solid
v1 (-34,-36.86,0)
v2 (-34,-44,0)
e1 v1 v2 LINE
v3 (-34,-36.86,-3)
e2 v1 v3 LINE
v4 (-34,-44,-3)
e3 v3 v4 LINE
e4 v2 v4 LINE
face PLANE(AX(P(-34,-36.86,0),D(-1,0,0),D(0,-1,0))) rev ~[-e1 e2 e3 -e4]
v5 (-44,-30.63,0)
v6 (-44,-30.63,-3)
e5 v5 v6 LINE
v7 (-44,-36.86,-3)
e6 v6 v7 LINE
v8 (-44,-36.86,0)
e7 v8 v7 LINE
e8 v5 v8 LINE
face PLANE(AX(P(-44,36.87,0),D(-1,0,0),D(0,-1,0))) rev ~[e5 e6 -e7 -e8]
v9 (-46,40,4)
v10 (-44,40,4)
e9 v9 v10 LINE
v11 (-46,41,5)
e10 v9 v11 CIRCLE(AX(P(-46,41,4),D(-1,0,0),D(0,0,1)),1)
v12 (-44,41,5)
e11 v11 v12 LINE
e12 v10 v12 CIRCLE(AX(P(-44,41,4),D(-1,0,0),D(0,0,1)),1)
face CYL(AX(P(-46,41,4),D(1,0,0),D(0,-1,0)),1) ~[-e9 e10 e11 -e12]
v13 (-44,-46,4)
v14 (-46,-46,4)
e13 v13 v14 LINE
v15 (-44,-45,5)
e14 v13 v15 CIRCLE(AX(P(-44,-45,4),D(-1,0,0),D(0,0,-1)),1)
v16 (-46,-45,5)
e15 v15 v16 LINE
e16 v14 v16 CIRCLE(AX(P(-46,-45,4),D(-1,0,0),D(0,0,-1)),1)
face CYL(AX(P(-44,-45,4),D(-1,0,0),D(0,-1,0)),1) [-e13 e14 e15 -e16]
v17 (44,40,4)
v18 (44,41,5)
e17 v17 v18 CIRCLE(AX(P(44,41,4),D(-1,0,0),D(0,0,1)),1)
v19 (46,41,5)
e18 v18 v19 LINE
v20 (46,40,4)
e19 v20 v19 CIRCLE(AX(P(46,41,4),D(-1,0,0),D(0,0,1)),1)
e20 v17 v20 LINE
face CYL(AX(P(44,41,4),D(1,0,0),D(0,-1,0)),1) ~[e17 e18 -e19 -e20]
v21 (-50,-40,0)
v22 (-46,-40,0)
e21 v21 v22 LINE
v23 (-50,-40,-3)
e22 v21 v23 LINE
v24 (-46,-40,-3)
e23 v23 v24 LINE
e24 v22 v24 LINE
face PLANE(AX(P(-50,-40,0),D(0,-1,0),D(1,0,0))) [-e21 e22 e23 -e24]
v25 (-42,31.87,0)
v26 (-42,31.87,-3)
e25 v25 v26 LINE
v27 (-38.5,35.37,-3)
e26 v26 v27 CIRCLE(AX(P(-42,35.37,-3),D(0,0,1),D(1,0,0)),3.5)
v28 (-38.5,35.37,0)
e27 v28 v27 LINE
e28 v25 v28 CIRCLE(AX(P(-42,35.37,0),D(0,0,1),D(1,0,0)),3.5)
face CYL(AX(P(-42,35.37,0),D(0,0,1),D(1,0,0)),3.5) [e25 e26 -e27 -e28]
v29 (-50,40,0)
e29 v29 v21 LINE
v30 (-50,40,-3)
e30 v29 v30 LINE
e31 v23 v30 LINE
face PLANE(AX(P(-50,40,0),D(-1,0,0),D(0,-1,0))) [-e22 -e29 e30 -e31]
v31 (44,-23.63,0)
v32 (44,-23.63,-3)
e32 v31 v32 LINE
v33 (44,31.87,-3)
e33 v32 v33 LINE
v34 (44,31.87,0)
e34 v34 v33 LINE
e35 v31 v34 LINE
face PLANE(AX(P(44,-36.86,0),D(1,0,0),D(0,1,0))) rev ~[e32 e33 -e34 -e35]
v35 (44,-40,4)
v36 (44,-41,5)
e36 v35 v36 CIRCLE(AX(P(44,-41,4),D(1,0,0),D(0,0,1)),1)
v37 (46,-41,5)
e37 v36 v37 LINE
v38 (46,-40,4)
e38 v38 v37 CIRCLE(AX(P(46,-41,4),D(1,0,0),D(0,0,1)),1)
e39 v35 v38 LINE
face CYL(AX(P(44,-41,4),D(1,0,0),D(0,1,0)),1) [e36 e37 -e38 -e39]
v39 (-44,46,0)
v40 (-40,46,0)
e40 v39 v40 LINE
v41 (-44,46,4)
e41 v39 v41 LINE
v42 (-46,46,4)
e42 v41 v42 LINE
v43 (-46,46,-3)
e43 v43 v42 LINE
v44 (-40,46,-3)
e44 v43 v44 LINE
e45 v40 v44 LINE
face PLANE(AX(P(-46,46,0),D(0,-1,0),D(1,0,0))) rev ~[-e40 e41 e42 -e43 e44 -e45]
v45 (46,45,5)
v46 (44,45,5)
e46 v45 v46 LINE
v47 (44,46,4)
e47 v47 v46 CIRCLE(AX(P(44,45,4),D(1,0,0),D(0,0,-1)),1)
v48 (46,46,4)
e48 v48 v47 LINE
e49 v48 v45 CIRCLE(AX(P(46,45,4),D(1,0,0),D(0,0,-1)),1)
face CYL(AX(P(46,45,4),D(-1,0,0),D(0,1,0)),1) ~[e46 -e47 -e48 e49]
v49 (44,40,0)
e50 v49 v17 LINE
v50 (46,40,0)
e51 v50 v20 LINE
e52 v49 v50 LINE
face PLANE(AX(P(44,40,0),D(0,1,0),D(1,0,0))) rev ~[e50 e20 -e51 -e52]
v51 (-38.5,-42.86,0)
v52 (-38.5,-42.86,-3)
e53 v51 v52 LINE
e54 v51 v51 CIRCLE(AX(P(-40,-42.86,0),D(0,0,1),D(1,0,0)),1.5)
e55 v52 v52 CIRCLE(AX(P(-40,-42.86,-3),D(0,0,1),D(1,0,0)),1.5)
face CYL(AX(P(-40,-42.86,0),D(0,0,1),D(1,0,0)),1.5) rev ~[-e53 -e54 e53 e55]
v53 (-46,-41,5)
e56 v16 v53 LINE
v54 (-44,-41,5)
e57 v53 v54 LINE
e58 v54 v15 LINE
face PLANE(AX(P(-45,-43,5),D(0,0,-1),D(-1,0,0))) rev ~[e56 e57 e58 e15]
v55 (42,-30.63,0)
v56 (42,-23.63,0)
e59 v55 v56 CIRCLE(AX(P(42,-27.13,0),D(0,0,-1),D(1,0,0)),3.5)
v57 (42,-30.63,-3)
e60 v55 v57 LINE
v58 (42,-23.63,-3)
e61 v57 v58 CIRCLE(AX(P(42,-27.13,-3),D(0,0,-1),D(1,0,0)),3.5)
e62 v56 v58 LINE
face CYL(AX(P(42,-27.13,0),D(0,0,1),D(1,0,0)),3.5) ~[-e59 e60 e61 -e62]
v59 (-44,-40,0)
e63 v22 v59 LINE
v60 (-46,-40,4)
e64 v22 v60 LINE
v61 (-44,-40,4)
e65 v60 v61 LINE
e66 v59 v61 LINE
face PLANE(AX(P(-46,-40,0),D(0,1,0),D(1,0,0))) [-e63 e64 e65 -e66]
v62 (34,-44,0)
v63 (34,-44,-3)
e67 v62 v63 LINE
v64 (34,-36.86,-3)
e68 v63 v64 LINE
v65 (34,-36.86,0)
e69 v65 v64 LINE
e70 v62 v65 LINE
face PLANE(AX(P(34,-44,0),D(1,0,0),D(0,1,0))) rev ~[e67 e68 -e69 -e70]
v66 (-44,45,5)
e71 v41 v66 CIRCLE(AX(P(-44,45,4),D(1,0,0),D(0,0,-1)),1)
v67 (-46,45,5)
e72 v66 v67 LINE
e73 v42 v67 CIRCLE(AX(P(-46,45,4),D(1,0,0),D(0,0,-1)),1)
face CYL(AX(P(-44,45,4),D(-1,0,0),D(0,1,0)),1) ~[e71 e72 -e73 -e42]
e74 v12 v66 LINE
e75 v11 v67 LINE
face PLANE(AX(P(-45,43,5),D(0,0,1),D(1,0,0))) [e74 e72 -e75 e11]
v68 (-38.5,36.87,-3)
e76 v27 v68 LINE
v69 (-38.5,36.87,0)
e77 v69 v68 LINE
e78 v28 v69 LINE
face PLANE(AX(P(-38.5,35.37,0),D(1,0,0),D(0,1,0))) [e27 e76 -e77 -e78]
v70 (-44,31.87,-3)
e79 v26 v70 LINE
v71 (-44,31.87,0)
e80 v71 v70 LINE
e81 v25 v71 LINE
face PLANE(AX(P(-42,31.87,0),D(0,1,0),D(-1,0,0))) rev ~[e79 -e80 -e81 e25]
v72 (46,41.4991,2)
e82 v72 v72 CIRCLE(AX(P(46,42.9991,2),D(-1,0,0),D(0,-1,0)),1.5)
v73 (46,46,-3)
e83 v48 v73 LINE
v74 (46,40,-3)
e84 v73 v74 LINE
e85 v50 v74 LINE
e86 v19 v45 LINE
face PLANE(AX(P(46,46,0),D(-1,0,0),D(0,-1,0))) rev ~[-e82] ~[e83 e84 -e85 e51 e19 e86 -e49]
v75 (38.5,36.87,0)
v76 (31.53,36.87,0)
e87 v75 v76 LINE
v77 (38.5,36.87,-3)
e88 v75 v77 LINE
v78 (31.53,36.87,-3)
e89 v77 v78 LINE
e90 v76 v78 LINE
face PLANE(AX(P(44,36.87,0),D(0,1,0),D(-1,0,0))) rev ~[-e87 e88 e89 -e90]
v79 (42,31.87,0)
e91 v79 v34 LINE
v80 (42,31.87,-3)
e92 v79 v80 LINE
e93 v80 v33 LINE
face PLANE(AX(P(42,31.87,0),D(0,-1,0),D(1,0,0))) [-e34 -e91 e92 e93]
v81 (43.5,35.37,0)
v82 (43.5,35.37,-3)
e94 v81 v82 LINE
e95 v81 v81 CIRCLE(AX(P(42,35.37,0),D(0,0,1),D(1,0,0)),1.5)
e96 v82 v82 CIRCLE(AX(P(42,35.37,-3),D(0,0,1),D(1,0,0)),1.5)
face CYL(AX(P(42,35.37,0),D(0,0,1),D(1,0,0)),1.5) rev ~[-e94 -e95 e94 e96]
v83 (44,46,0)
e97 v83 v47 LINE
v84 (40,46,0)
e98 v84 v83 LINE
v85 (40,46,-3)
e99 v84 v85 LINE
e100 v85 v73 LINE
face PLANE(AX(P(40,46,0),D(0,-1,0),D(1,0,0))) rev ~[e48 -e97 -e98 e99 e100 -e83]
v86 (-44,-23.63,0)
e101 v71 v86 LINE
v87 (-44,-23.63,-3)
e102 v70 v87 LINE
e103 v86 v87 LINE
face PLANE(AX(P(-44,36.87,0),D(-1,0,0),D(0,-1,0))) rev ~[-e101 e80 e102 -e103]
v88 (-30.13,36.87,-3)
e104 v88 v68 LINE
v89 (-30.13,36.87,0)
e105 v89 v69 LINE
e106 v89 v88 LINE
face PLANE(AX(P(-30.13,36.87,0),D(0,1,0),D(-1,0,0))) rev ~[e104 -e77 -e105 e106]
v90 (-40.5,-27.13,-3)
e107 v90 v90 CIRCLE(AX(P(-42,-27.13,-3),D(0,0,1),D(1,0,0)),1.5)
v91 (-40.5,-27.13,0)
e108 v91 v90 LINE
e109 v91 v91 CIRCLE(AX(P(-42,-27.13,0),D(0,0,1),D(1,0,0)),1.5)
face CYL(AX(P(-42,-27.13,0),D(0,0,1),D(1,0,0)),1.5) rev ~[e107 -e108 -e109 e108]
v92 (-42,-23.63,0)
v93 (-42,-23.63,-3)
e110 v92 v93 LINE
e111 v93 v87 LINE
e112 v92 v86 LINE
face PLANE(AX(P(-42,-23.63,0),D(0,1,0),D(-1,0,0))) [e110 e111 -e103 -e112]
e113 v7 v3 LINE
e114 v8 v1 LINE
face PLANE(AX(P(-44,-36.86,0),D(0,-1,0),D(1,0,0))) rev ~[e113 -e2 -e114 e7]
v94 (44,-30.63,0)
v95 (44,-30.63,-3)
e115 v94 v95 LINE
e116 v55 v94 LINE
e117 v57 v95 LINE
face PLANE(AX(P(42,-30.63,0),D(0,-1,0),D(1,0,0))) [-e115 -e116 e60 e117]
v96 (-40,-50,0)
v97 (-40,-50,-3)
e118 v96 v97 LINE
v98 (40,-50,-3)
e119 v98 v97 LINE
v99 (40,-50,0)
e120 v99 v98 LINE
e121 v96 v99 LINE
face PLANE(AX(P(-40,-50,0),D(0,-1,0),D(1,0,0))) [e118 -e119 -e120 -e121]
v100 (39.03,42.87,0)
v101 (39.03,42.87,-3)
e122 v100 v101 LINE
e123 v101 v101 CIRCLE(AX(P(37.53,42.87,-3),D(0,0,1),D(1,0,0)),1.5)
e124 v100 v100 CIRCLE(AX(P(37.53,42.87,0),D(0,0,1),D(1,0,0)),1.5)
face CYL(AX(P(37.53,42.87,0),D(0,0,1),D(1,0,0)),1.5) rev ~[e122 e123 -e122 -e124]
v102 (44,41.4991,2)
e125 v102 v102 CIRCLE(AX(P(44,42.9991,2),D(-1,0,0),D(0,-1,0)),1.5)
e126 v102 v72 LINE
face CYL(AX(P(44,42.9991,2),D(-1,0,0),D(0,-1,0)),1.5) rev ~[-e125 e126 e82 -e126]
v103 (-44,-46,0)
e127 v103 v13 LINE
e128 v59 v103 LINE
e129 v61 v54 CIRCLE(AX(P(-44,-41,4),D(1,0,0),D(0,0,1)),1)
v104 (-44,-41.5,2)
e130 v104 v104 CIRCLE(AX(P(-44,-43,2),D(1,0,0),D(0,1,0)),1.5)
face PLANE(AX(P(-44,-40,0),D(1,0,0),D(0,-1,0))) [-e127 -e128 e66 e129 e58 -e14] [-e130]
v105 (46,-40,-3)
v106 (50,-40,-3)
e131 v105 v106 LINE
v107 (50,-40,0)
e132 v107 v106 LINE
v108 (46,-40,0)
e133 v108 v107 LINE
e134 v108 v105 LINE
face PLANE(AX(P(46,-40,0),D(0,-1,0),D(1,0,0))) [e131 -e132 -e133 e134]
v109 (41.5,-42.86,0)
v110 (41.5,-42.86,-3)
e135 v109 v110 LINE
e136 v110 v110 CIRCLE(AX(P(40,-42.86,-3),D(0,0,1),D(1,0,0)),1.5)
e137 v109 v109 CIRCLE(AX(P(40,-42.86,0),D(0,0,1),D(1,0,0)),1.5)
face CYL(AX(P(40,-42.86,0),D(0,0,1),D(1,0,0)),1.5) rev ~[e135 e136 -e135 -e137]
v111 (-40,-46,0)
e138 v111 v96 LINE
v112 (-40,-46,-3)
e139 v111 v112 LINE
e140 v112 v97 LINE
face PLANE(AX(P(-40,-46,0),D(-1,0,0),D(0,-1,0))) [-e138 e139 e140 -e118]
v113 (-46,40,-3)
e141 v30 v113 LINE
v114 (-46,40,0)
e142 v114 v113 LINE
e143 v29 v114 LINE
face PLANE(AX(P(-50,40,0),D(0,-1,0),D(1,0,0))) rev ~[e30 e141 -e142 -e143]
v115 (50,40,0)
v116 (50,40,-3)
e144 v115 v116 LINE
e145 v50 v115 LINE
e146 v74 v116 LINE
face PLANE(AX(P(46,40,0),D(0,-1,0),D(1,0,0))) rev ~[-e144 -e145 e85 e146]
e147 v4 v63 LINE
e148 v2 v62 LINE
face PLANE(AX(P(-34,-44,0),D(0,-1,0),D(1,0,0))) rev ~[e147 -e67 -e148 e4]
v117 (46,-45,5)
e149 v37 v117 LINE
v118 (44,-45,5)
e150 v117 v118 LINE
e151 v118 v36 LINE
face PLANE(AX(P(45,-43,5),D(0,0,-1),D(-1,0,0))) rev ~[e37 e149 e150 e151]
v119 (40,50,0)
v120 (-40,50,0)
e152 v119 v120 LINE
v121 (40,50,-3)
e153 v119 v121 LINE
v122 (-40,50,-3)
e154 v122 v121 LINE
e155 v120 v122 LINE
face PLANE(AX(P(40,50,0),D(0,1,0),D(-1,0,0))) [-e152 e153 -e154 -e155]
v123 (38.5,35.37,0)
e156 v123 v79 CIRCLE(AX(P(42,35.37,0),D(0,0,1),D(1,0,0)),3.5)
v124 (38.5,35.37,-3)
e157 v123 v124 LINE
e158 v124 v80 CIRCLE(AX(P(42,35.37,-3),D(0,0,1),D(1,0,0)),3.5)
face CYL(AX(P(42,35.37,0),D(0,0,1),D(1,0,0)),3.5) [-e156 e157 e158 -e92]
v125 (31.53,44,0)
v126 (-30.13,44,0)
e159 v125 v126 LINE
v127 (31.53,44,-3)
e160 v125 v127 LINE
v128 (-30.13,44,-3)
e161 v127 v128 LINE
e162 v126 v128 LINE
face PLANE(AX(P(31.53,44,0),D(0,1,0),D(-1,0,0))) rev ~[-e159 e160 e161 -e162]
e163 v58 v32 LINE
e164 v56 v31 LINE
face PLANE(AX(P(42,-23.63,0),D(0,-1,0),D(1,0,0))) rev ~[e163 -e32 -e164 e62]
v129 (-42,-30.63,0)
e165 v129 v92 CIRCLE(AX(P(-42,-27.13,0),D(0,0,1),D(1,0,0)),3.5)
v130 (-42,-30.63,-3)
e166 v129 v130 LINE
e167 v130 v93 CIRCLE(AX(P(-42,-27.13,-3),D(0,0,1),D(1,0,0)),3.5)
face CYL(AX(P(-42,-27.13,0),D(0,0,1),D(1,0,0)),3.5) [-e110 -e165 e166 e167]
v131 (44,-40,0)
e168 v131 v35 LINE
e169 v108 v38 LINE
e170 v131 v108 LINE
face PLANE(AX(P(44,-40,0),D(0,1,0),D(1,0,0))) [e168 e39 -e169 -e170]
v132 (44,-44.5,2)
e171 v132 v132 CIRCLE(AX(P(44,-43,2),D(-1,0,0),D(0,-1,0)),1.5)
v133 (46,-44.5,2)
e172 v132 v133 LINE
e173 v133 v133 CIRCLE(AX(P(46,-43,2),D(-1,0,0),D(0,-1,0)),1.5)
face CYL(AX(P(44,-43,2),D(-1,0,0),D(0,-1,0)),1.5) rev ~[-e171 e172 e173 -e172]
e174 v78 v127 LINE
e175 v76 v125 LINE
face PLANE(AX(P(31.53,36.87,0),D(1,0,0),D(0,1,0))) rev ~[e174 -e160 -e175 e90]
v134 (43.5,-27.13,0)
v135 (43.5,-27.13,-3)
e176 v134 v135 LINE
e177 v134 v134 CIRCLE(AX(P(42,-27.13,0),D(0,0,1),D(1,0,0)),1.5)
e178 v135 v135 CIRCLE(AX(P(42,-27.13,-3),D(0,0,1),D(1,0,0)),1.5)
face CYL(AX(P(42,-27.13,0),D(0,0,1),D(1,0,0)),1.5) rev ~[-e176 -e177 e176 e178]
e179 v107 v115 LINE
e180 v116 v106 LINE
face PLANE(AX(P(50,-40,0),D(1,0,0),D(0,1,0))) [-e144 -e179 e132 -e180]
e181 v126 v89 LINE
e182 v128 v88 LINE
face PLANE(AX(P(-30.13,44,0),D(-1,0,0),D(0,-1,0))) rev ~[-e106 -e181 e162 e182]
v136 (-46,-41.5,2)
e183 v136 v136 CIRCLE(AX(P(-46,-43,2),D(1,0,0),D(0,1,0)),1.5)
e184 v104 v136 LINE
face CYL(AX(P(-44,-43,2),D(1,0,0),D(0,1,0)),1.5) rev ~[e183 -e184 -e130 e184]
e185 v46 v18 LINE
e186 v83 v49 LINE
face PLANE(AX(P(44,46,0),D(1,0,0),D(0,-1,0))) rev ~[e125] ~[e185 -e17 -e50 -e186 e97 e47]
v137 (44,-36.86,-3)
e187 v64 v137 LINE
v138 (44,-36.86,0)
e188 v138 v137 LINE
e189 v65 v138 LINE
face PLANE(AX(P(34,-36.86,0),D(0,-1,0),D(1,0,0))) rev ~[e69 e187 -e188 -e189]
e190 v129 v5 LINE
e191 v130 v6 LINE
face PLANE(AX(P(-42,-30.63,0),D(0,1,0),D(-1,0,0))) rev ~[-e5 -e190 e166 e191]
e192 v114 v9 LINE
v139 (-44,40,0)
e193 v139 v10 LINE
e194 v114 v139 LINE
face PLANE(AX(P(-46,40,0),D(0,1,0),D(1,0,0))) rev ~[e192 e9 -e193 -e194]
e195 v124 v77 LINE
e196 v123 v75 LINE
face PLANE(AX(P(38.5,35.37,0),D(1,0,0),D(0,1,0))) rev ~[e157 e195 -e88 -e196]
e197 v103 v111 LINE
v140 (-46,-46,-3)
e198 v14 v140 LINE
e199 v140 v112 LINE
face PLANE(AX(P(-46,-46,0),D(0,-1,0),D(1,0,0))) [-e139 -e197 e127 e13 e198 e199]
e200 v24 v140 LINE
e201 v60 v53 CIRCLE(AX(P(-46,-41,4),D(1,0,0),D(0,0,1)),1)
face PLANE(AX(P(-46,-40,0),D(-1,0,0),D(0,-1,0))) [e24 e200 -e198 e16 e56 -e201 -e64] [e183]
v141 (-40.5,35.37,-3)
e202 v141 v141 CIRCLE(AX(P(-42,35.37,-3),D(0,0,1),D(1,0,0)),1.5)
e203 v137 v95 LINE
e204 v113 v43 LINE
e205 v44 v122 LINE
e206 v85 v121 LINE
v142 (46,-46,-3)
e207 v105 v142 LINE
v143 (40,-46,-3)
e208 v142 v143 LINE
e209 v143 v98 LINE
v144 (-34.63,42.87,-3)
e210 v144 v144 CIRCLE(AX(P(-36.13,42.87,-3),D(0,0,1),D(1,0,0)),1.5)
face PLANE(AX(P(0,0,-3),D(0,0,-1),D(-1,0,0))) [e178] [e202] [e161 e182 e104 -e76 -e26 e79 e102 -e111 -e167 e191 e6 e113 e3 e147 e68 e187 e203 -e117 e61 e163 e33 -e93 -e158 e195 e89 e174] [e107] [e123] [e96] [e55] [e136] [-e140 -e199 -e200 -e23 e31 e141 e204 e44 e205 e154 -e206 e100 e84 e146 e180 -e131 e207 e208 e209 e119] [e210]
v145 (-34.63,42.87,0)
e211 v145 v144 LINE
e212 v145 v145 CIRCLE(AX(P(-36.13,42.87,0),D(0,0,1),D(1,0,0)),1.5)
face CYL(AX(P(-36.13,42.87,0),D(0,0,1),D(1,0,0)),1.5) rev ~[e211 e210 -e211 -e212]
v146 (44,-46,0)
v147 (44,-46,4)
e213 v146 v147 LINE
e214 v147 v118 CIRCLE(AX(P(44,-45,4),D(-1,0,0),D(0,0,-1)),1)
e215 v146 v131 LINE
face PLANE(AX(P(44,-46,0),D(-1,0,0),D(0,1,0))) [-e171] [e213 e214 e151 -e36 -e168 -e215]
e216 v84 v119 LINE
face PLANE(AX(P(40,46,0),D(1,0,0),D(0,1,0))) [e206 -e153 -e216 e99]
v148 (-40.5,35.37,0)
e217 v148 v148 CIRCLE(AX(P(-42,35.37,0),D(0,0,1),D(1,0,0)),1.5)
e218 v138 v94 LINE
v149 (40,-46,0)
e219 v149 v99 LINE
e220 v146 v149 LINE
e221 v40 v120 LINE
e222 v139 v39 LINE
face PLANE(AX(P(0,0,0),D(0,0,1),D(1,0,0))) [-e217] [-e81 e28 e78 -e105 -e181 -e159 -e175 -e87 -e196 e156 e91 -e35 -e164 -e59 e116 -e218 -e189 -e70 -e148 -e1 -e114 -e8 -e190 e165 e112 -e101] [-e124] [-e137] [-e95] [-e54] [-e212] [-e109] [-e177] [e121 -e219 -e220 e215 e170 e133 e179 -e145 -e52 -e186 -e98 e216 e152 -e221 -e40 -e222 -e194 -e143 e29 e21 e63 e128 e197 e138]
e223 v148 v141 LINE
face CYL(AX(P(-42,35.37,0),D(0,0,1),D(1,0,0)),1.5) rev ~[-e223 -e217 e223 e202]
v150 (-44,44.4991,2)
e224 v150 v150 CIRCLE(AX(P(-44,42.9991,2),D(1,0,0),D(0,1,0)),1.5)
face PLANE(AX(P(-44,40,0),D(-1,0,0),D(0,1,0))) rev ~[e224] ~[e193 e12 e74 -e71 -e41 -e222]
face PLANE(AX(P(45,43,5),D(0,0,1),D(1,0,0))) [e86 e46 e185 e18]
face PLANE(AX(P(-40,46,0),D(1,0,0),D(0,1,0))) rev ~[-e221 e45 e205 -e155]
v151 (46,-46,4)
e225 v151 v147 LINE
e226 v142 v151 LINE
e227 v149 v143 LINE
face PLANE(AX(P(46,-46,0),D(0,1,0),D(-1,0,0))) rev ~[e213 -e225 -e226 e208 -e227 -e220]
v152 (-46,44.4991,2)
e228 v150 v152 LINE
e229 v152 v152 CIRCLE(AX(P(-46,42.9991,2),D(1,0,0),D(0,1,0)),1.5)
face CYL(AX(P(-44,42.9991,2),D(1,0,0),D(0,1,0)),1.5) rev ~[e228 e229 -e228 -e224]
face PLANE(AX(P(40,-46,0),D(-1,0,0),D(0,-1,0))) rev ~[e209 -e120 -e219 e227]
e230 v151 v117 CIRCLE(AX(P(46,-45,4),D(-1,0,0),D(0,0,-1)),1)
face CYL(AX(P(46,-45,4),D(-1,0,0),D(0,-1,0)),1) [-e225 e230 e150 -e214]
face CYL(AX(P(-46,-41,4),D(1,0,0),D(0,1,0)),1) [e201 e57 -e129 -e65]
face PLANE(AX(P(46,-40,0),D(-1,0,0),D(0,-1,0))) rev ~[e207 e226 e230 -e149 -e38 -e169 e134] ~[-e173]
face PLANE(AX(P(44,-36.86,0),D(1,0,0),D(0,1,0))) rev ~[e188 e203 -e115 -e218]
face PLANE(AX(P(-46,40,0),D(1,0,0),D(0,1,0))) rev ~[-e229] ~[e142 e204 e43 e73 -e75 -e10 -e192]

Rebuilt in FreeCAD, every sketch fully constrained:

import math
import FreeCAD as App
import Part
import Sketcher
from FreeCAD import Vector
Q = App.Units.Quantity


def edges_at(feature, points):
    """Names of the edges that pass closest to the given points."""
    edges = feature.Shape.Edges
    near = lambda p: min(range(len(edges)), key=lambda i: edges[i].distToShape(Part.Vertex(*p))[0])
    return sorted({f"Edge{near(p) + 1}" for p in points})


def add_polygon(sketch, points):
    """Adds a closed chain of lines whose ends are joined by coincident constraints."""
    first, n = sketch.GeometryCount, len(points)
    for a, b in zip(points, points[1:] + points[:1]):
        sketch.addGeometry(Part.LineSegment(App.Vector(*a, 0), App.Vector(*b, 0)), False)
    for i in range(n):
        sketch.addConstraint(Sketcher.Constraint("Coincident", first + i, 2, first + (i + 1) % n, 1))

doc = App.newDocument("Part")
body = doc.addObject("PartDesign::Body", "Body")

# Sketch on XY plane
sketch1 = doc.addObject("Sketcher::SketchObject", "Sketch")
body.addObject(sketch1)
sketch1.AttachmentSupport = (doc.XY_Plane, [""])
sketch1.MapMode = "FlatFace"
add_polygon(sketch1, [(-50, -50), (50, -50), (50, 50), (-50, 50)])  # lines 0-3
sketch1.addConstraint(Sketcher.Constraint("Horizontal", 0))
sketch1.addConstraint(Sketcher.Constraint("Vertical", 1))
sketch1.addConstraint(Sketcher.Constraint("Horizontal", 2))
sketch1.addConstraint(Sketcher.Constraint("Vertical", 3))
sketch1.addConstraint(Sketcher.Constraint("Symmetric", 0, 2, 2, 2, -1, 1))
sketch1.addConstraint(Sketcher.Constraint("Equal", 2, 1))
sketch1.addConstraint(Sketcher.Constraint("DistanceX", 0, 1, 0, 2, Q("100 mm")))
pad1 = doc.addObject("PartDesign::Pad", "Pad")
body.addObject(pad1)
pad1.Profile = sketch1
pad1.Length = 5
pad1.Reversed = True

# Sketch on XY plane
sketch2 = doc.addObject("Sketcher::SketchObject", "Sketch001")
body.addObject(sketch2)
sketch2.AttachmentSupport = (doc.XY_Plane, [""])
sketch2.MapMode = "FlatFace"
add_polygon(sketch2, [(50, 40), (50, 50), (40, 50), (40, 46), (46, 46), (46, 40)])  # lines 0-5
add_polygon(sketch2, [(50, -50), (50, -40), (46, -40), (46, -46), (40, -46), (40, -50)])  # lines 6-11
add_polygon(sketch2, [(-50, -40), (-50, -50), (-40, -50), (-40, -46), (-46, -46), (-46, -40)])  # lines 12-17
add_polygon(sketch2, [(-50, 40), (-46, 40), (-46, 46), (-40, 46), (-40, 50), (-50, 50)])  # lines 18-23
sketch2.addConstraint(Sketcher.Constraint("Vertical", 0))
sketch2.addConstraint(Sketcher.Constraint("Horizontal", 1))
sketch2.addConstraint(Sketcher.Constraint("Vertical", 2))
sketch2.addConstraint(Sketcher.Constraint("Horizontal", 3))
sketch2.addConstraint(Sketcher.Constraint("Vertical", 4))
sketch2.addConstraint(Sketcher.Constraint("Horizontal", 5))
sketch2.addConstraint(Sketcher.Constraint("Vertical", 6))
sketch2.addConstraint(Sketcher.Constraint("Horizontal", 7))
sketch2.addConstraint(Sketcher.Constraint("Vertical", 8))
sketch2.addConstraint(Sketcher.Constraint("Horizontal", 9))
sketch2.addConstraint(Sketcher.Constraint("Vertical", 10))
sketch2.addConstraint(Sketcher.Constraint("Horizontal", 11))
sketch2.addConstraint(Sketcher.Constraint("Vertical", 12))
sketch2.addConstraint(Sketcher.Constraint("Horizontal", 13))
sketch2.addConstraint(Sketcher.Constraint("Vertical", 14))
sketch2.addConstraint(Sketcher.Constraint("Horizontal", 15))
sketch2.addConstraint(Sketcher.Constraint("Vertical", 16))
sketch2.addConstraint(Sketcher.Constraint("Horizontal", 17))
sketch2.addConstraint(Sketcher.Constraint("Horizontal", 18))
sketch2.addConstraint(Sketcher.Constraint("Vertical", 19))
sketch2.addConstraint(Sketcher.Constraint("Horizontal", 20))
sketch2.addConstraint(Sketcher.Constraint("Vertical", 21))
sketch2.addConstraint(Sketcher.Constraint("Horizontal", 22))
sketch2.addConstraint(Sketcher.Constraint("Vertical", 23))
sketch2.addConstraint(Sketcher.Constraint("Symmetric", 0, 2, 12, 2, -1, 1))
sketch2.addConstraint(Sketcher.Constraint("Symmetric", 2, 2, 14, 2, -1, 1))
sketch2.addConstraint(Sketcher.Constraint("Symmetric", 4, 2, 16, 2, -1, 1))
sketch2.addConstraint(Sketcher.Constraint("Symmetric", 7, 2, 18, 2, -1, 1))
sketch2.addConstraint(Sketcher.Constraint("Symmetric", 9, 2, 20, 2, -1, 1))
sketch2.addConstraint(Sketcher.Constraint("Symmetric", 11, 2, 22, 2, -1, 1))
sketch2.addConstraint(Sketcher.Constraint("Symmetric", 11, 2, 12, 2, -2))
sketch2.addConstraint(Sketcher.Constraint("Symmetric", 9, 2, 14, 2, -2))
sketch2.addConstraint(Sketcher.Constraint("Symmetric", 7, 2, 16, 2, -2))
sketch2.addConstraint(Sketcher.Constraint("Equal", 22, 0))
sketch2.addConstraint(Sketcher.Constraint("Equal", 18, 2))
sketch2.addConstraint(Sketcher.Constraint("DistanceX", -1, 1, 0, 2, Q("50 mm")))
sketch2.addConstraint(Sketcher.Constraint("DistanceY", -1, 1, 0, 2, Q("50 mm")))
sketch2.addConstraint(Sketcher.Constraint("DistanceX", -1, 1, 1, 2, Q("40 mm")))
sketch2.addConstraint(Sketcher.Constraint("DistanceY", -1, 1, 2, 2, Q("46 mm")))
pocket1 = doc.addObject("PartDesign::Pocket", "Pocket")
body.addObject(pocket1)
pocket1.Profile = sketch2
pocket1.Length = 11.3526

# Sketch on XY plane
sketch3 = doc.addObject("Sketcher::SketchObject", "Sketch002")
body.addObject(sketch3)
sketch3.AttachmentSupport = (doc.XY_Plane, [""])
sketch3.MapMode = "FlatFace"
sketch3.addGeometry(Part.Circle(Vector(-40, -42.86, 0), Vector(0, 0, 1), 1.5), False)
sketch3.addGeometry(Part.Circle(Vector(-36.13, 42.87, 0), Vector(0, 0, 1), 1.5), False)
sketch3.addGeometry(Part.Circle(Vector(40, -42.86, 0), Vector(0, 0, 1), 1.5), False)
sketch3.addGeometry(Part.Circle(Vector(37.53, 42.87, 0), Vector(0, 0, 1), 1.5), False)
sketch3.addConstraint(Sketcher.Constraint("Equal", 0, 1))
sketch3.addConstraint(Sketcher.Constraint("Equal", 1, 2))
sketch3.addConstraint(Sketcher.Constraint("Equal", 2, 3))
sketch3.addConstraint(Sketcher.Constraint("Symmetric", 0, 3, 2, 3, -2))
sketch3.addConstraint(Sketcher.Constraint("Horizontal", 1, 3, 3, 3))
sketch3.addConstraint(Sketcher.Constraint("Diameter", 0, Q("3 mm")))
sketch3.addConstraint(Sketcher.Constraint("DistanceX", 0, 3, -1, 1, Q("40 mm")))
sketch3.addConstraint(Sketcher.Constraint("DistanceY", 0, 3, -1, 1, Q("42.86 mm")))
sketch3.addConstraint(Sketcher.Constraint("DistanceX", 1, 3, -1, 1, Q("36.13 mm")))
sketch3.addConstraint(Sketcher.Constraint("DistanceY", -1, 1, 1, 3, Q("42.87 mm")))
sketch3.addConstraint(Sketcher.Constraint("DistanceX", -1, 1, 3, 3, Q("37.53 mm")))
pocket2 = doc.addObject("PartDesign::Pocket", "Pocket001")
body.addObject(pocket2)
pocket2.Profile = sketch3
pocket2.Length = 5

# Sketch on XY plane
sketch4 = doc.addObject("Sketcher::SketchObject", "Sketch003")
body.addObject(sketch4)
sketch4.AttachmentSupport = (doc.XY_Plane, [""])
sketch4.MapMode = "FlatFace"
add_polygon(sketch4, [(-30.13, 36.87), (-44, 36.87), (-44, -36.86), (-34, -36.86), (-34, -44), (34, -44), (34, -36.86), (44, -36.86), (44, 36.87), (31.53, 36.87), (31.53, 44), (-30.13, 44)])  # lines 0-11
sketch4.addConstraint(Sketcher.Constraint("Horizontal", 0))
sketch4.addConstraint(Sketcher.Constraint("Vertical", 1))
sketch4.addConstraint(Sketcher.Constraint("Horizontal", 2))
sketch4.addConstraint(Sketcher.Constraint("Vertical", 3))
sketch4.addConstraint(Sketcher.Constraint("Horizontal", 4))
sketch4.addConstraint(Sketcher.Constraint("Vertical", 5))
sketch4.addConstraint(Sketcher.Constraint("Horizontal", 6))
sketch4.addConstraint(Sketcher.Constraint("Vertical", 7))
sketch4.addConstraint(Sketcher.Constraint("Horizontal", 8))
sketch4.addConstraint(Sketcher.Constraint("Vertical", 9))
sketch4.addConstraint(Sketcher.Constraint("Horizontal", 10))
sketch4.addConstraint(Sketcher.Constraint("Vertical", 11))
sketch4.addConstraint(Sketcher.Constraint("Symmetric", 2, 2, 5, 2, -2))
sketch4.addConstraint(Sketcher.Constraint("Symmetric", 0, 2, 7, 2, -2))
sketch4.addConstraint(Sketcher.Constraint("DistanceX", 2, 1, 2, 2, Q("10 mm")))
sketch4.addConstraint(Sketcher.Constraint("DistanceX", 4, 1, 4, 2, Q("68 mm")))
sketch4.addConstraint(Sketcher.Constraint("DistanceY", 3, 2, -1, 1, Q("44 mm")))
sketch4.addConstraint(Sketcher.Constraint("DistanceY", -1, 1, 9, 2, Q("44 mm")))
sketch4.addConstraint(Sketcher.Constraint("DistanceX", 0, 2, 0, 1, Q("13.87 mm")))
sketch4.addConstraint(Sketcher.Constraint("DistanceX", 8, 2, 8, 1, Q("12.47 mm")))
sketch4.addConstraint(Sketcher.Constraint("DistanceY", 1, 2, 1, 1, Q("73.73 mm")))
sketch4.addConstraint(Sketcher.Constraint("DistanceY", 3, 2, 3, 1, Q("7.14 mm")))
pocket3 = doc.addObject("PartDesign::Pocket", "Pocket002")
body.addObject(pocket3)
pocket3.Profile = sketch4
pocket3.Length = 5

# Sketch on XY plane
sketch5 = doc.addObject("Sketcher::SketchObject", "Sketch004")
body.addObject(sketch5)
sketch5.AttachmentSupport = (doc.XY_Plane, [""])
sketch5.MapMode = "FlatFace"
add_polygon(sketch5, [(-46, 46), (-46, 40), (-44, 40), (-44, 46)])  # lines 0-3
add_polygon(sketch5, [(46, 40), (46, 46), (44, 46), (44, 40)])  # lines 4-7
add_polygon(sketch5, [(-44, -40), (-46, -40), (-46, -46), (-44, -46)])  # lines 8-11
add_polygon(sketch5, [(44, -46), (46, -46), (46, -40), (44, -40)])  # lines 12-15
sketch5.addConstraint(Sketcher.Constraint("Vertical", 0))
sketch5.addConstraint(Sketcher.Constraint("Horizontal", 1))
sketch5.addConstraint(Sketcher.Constraint("Vertical", 2))
sketch5.addConstraint(Sketcher.Constraint("Horizontal", 3))
sketch5.addConstraint(Sketcher.Constraint("Vertical", 4))
sketch5.addConstraint(Sketcher.Constraint("Horizontal", 5))
sketch5.addConstraint(Sketcher.Constraint("Vertical", 6))
sketch5.addConstraint(Sketcher.Constraint("Horizontal", 7))
sketch5.addConstraint(Sketcher.Constraint("Horizontal", 8))
sketch5.addConstraint(Sketcher.Constraint("Vertical", 9))
sketch5.addConstraint(Sketcher.Constraint("Horizontal", 10))
sketch5.addConstraint(Sketcher.Constraint("Vertical", 11))
sketch5.addConstraint(Sketcher.Constraint("Horizontal", 12))
sketch5.addConstraint(Sketcher.Constraint("Vertical", 13))
sketch5.addConstraint(Sketcher.Constraint("Horizontal", 14))
sketch5.addConstraint(Sketcher.Constraint("Vertical", 15))
sketch5.addConstraint(Sketcher.Constraint("Symmetric", 7, 2, 8, 2, -1, 1))
sketch5.addConstraint(Sketcher.Constraint("Symmetric", 5, 2, 10, 2, -1, 1))
sketch5.addConstraint(Sketcher.Constraint("Symmetric", 3, 2, 12, 2, -1, 1))
sketch5.addConstraint(Sketcher.Constraint("Symmetric", 1, 2, 14, 2, -1, 1))
sketch5.addConstraint(Sketcher.Constraint("Symmetric", 3, 2, 4, 2, -2))
sketch5.addConstraint(Sketcher.Constraint("Symmetric", 1, 2, 6, 2, -2))
sketch5.addConstraint(Sketcher.Constraint("DistanceX", 1, 1, 1, 2, Q("2 mm")))
sketch5.addConstraint(Sketcher.Constraint("DistanceY", 0, 2, 0, 1, Q("6 mm")))
sketch5.addConstraint(Sketcher.Constraint("DistanceX", 0, 2, -1, 1, Q("46 mm")))
sketch5.addConstraint(Sketcher.Constraint("DistanceY", -1, 1, 0, 2, Q("40 mm")))
pad2 = doc.addObject("PartDesign::Pad", "Pad001")
body.addObject(pad2)
pad2.Profile = sketch5
pad2.Length = 5

# Sketch on YZ plane
sketch6 = doc.addObject("Sketcher::SketchObject", "Sketch005")
body.addObject(sketch6)
sketch6.AttachmentSupport = (doc.YZ_Plane, [""])
sketch6.MapMode = "FlatFace"
sketch6.AttachmentOffset = App.Placement(Vector(0, 0, -44), App.Rotation())
sketch6.addGeometry(Part.Circle(Vector(-43, 2, 0), Vector(0, 0, 1), 1.5), False)
sketch6.addGeometry(Part.Circle(Vector(42.9991, 2, 0), Vector(0, 0, 1), 1.5), False)
sketch6.addConstraint(Sketcher.Constraint("Equal", 0, 1))
sketch6.addConstraint(Sketcher.Constraint("Horizontal", 0, 3, 1, 3))
sketch6.addConstraint(Sketcher.Constraint("Diameter", 0, Q("3 mm")))
sketch6.addConstraint(Sketcher.Constraint("DistanceX", 0, 3, -1, 1, Q("43 mm")))
sketch6.addConstraint(Sketcher.Constraint("DistanceY", -1, 1, 0, 3, Q("2 mm")))
sketch6.addConstraint(Sketcher.Constraint("DistanceX", -1, 1, 1, 3, Q("42.999 mm")))
pocket4 = doc.addObject("PartDesign::Pocket", "Pocket003")
body.addObject(pocket4)
pocket4.Profile = sketch6
pocket4.Length = 2

# Sketch on YZ plane
sketch7 = doc.addObject("Sketcher::SketchObject", "Sketch006")
body.addObject(sketch7)
sketch7.AttachmentSupport = (doc.YZ_Plane, [""])
sketch7.MapMode = "FlatFace"
sketch7.AttachmentOffset = App.Placement(Vector(0, 0, 44), App.Rotation())
sketch7.addGeometry(Part.Circle(Vector(42.9991, 2, 0), Vector(0, 0, 1), 1.5), False)
sketch7.addGeometry(Part.Circle(Vector(-43, 2, 0), Vector(0, 0, 1), 1.5), False)
sketch7.addConstraint(Sketcher.Constraint("Equal", 0, 1))
sketch7.addConstraint(Sketcher.Constraint("Horizontal", 0, 3, 1, 3))
sketch7.addConstraint(Sketcher.Constraint("Diameter", 0, Q("3 mm")))
sketch7.addConstraint(Sketcher.Constraint("DistanceY", -1, 1, 0, 3, Q("2 mm")))
sketch7.addConstraint(Sketcher.Constraint("DistanceX", 1, 3, -1, 1, Q("43 mm")))
sketch7.addConstraint(Sketcher.Constraint("DistanceX", -1, 1, 0, 3, Q("42.999 mm")))
pocket5 = doc.addObject("PartDesign::Pocket", "Pocket004")
body.addObject(pocket5)
pocket5.Profile = sketch7
pocket5.Length = 2
pocket5.Reversed = True
doc.recompute()

fillet = doc.addObject("PartDesign::Fillet", "Fillet")
body.addObject(fillet)
fillet.Base = (pocket5, edges_at(pocket5, [
    (45, 40, 5),
    (45, 46, 5),
    (-45, 40, 5),
    (-45, 46, 5),
    (-45, -46, 5),
    (-45, -40, 5),
    (45, -46, 5),
    (45, -40, 5),
]))
fillet.Radius = 1

# Sketch on XY plane
sketch8 = doc.addObject("Sketcher::SketchObject", "Sketch007")
body.addObject(sketch8)
sketch8.AttachmentSupport = (doc.XY_Plane, [""])
sketch8.MapMode = "FlatFace"
sketch8.AttachmentOffset = App.Placement(Vector(0, 0, -5), App.Rotation())
add_polygon(sketch8, [(-50, 50), (50, 50), (50, -50), (-50, -50)])  # lines 0-3
sketch8.addConstraint(Sketcher.Constraint("Horizontal", 0))
sketch8.addConstraint(Sketcher.Constraint("Vertical", 1))
sketch8.addConstraint(Sketcher.Constraint("Horizontal", 2))
sketch8.addConstraint(Sketcher.Constraint("Vertical", 3))
sketch8.addConstraint(Sketcher.Constraint("Symmetric", 0, 2, 2, 2, -1, 1))
sketch8.addConstraint(Sketcher.Constraint("Equal", 2, 1))
sketch8.addConstraint(Sketcher.Constraint("DistanceX", -1, 1, 0, 2, Q("50 mm")))
pocket6 = doc.addObject("PartDesign::Pocket", "Pocket005")
body.addObject(pocket6)
pocket6.Profile = sketch8
pocket6.Length = 2
pocket6.Reversed = True

# Sketch on XY plane
sketch9 = doc.addObject("Sketcher::SketchObject", "Sketch008")
body.addObject(sketch9)
sketch9.AttachmentSupport = (doc.XY_Plane, [""])
sketch9.MapMode = "FlatFace"
sketch9.addGeometry(Part.ArcOfCircle(Part.Circle(Vector(-42, -27.13, 0), Vector(0, 0, 1), 3.5), math.radians(-90), math.radians(90)), False)
sketch9.addGeometry(Part.LineSegment(Vector(-42, -23.63, 0), Vector(-44, -23.63, 0)), False)
sketch9.addGeometry(Part.LineSegment(Vector(-44, -23.63, 0), Vector(-44, -30.63, 0)), False)
sketch9.addGeometry(Part.LineSegment(Vector(-44, -30.63, 0), Vector(-42, -30.63, 0)), False)
sketch9.addGeometry(Part.LineSegment(Vector(44, -23.63, 0), Vector(42, -23.63, 0)), False)
sketch9.addGeometry(Part.ArcOfCircle(Part.Circle(Vector(42, -27.13, 0), Vector(0, 0, 1), 3.5), math.radians(90), math.radians(270)), False)
sketch9.addGeometry(Part.LineSegment(Vector(42, -30.63, 0), Vector(44, -30.63, 0)), False)
sketch9.addGeometry(Part.LineSegment(Vector(44, -30.63, 0), Vector(44, -23.63, 0)), False)
sketch9.addGeometry(Part.ArcOfCircle(Part.Circle(Vector(42, 35.37, 0), Vector(0, 0, 1), 3.5), math.radians(180), math.radians(270)), False)
sketch9.addGeometry(Part.LineSegment(Vector(42, 31.87, 0), Vector(44, 31.87, 0)), False)
sketch9.addGeometry(Part.LineSegment(Vector(44, 31.87, 0), Vector(44, 36.87, 0)), False)
sketch9.addGeometry(Part.LineSegment(Vector(44, 36.87, 0), Vector(38.5, 36.87, 0)), False)
sketch9.addGeometry(Part.LineSegment(Vector(38.5, 36.87, 0), Vector(38.5, 35.37, 0)), False)
sketch9.addGeometry(Part.ArcOfCircle(Part.Circle(Vector(-42, 35.37, 0), Vector(0, 0, 1), 3.5), math.radians(-90), math.radians(0)), False)
sketch9.addGeometry(Part.LineSegment(Vector(-38.5, 35.37, 0), Vector(-38.5, 36.87, 0)), False)
sketch9.addGeometry(Part.LineSegment(Vector(-38.5, 36.87, 0), Vector(-44, 36.87, 0)), False)
sketch9.addGeometry(Part.LineSegment(Vector(-44, 36.87, 0), Vector(-44, 31.87, 0)), False)
sketch9.addGeometry(Part.LineSegment(Vector(-44, 31.87, 0), Vector(-42, 31.87, 0)), False)
sketch9.addConstraint(Sketcher.Constraint("Tangent", 0, 2, 1, 1))
sketch9.addConstraint(Sketcher.Constraint("Coincident", 1, 2, 2, 1))
sketch9.addConstraint(Sketcher.Constraint("Coincident", 2, 2, 3, 1))
sketch9.addConstraint(Sketcher.Constraint("Tangent", 3, 2, 0, 1))
sketch9.addConstraint(Sketcher.Constraint("Tangent", 4, 2, 5, 1))
sketch9.addConstraint(Sketcher.Constraint("Tangent", 5, 2, 6, 1))
sketch9.addConstraint(Sketcher.Constraint("Coincident", 6, 2, 7, 1))
sketch9.addConstraint(Sketcher.Constraint("Coincident", 7, 2, 4, 1))
sketch9.addConstraint(Sketcher.Constraint("Tangent", 8, 2, 9, 1))
sketch9.addConstraint(Sketcher.Constraint("Coincident", 9, 2, 10, 1))
sketch9.addConstraint(Sketcher.Constraint("Coincident", 10, 2, 11, 1))
sketch9.addConstraint(Sketcher.Constraint("Coincident", 11, 2, 12, 1))
sketch9.addConstraint(Sketcher.Constraint("Tangent", 12, 2, 8, 1))
sketch9.addConstraint(Sketcher.Constraint("Tangent", 13, 2, 14, 1))
sketch9.addConstraint(Sketcher.Constraint("Coincident", 14, 2, 15, 1))
sketch9.addConstraint(Sketcher.Constraint("Coincident", 15, 2, 16, 1))
sketch9.addConstraint(Sketcher.Constraint("Coincident", 16, 2, 17, 1))
sketch9.addConstraint(Sketcher.Constraint("Tangent", 17, 2, 13, 1))
sketch9.addConstraint(Sketcher.Constraint("Horizontal", 1))
sketch9.addConstraint(Sketcher.Constraint("Vertical", 2))
sketch9.addConstraint(Sketcher.Constraint("Horizontal", 3))
sketch9.addConstraint(Sketcher.Constraint("Horizontal", 4))
sketch9.addConstraint(Sketcher.Constraint("Horizontal", 6))
sketch9.addConstraint(Sketcher.Constraint("Vertical", 7))
sketch9.addConstraint(Sketcher.Constraint("Horizontal", 9))
sketch9.addConstraint(Sketcher.Constraint("Vertical", 10))
sketch9.addConstraint(Sketcher.Constraint("Horizontal", 11))
sketch9.addConstraint(Sketcher.Constraint("Vertical", 12))
sketch9.addConstraint(Sketcher.Constraint("Vertical", 14))
sketch9.addConstraint(Sketcher.Constraint("Horizontal", 15))
sketch9.addConstraint(Sketcher.Constraint("Vertical", 16))
sketch9.addConstraint(Sketcher.Constraint("Horizontal", 17))
sketch9.addConstraint(Sketcher.Constraint("Equal", 0, 5))
sketch9.addConstraint(Sketcher.Constraint("Equal", 5, 8))
sketch9.addConstraint(Sketcher.Constraint("Equal", 8, 13))
sketch9.addConstraint(Sketcher.Constraint("Symmetric", 0, 3, 5, 3, -2))
sketch9.addConstraint(Sketcher.Constraint("Symmetric", 8, 3, 13, 3, -2))
sketch9.addConstraint(Sketcher.Constraint("Symmetric", 10, 2, 15, 2, -2))
sketch9.addConstraint(Sketcher.Constraint("Vertical", 5, 3, 8, 3))
sketch9.addConstraint(Sketcher.Constraint("Vertical", 7, 2, 9, 2))
sketch9.addConstraint(Sketcher.Constraint("Vertical", 2, 2, 15, 2))
sketch9.addConstraint(Sketcher.Constraint("Radius", 0, Q("3.5 mm")))
sketch9.addConstraint(Sketcher.Constraint("DistanceX", 1, 2, 1, 1, Q("2 mm")))
sketch9.addConstraint(Sketcher.Constraint("DistanceY", 10, 1, 10, 2, Q("5 mm")))
sketch9.addConstraint(Sketcher.Constraint("DistanceX", 0, 3, -1, 1, Q("42 mm")))
sketch9.addConstraint(Sketcher.Constraint("DistanceY", 0, 2, 13, 3, Q("59 mm")))
sketch9.addConstraint(Sketcher.Constraint("DistanceY", 0, 3, -1, 1, Q("27.13 mm")))
pad3 = doc.addObject("PartDesign::Pad", "Pad002")
body.addObject(pad3)
pad3.Profile = sketch9
pad3.Length = 3
pad3.Reversed = True

# Sketch on XY plane
sketch10 = doc.addObject("Sketcher::SketchObject", "Sketch009")
body.addObject(sketch10)
sketch10.AttachmentSupport = (doc.XY_Plane, [""])
sketch10.MapMode = "FlatFace"
sketch10.addGeometry(Part.Circle(Vector(-42, 35.37, 0), Vector(0, 0, 1), 1.5), False)
sketch10.addGeometry(Part.Circle(Vector(42, 35.37, 0), Vector(0, 0, 1), 1.5), False)
sketch10.addGeometry(Part.Circle(Vector(42, -27.13, 0), Vector(0, 0, 1), 1.5), False)
sketch10.addGeometry(Part.Circle(Vector(-42, -27.13, 0), Vector(0, 0, 1), 1.5), False)
sketch10.addConstraint(Sketcher.Constraint("Equal", 0, 1))
sketch10.addConstraint(Sketcher.Constraint("Equal", 1, 2))
sketch10.addConstraint(Sketcher.Constraint("Equal", 2, 3))
sketch10.addConstraint(Sketcher.Constraint("Symmetric", 0, 3, 1, 3, -2))
sketch10.addConstraint(Sketcher.Constraint("Symmetric", 2, 3, 3, 3, -2))
sketch10.addConstraint(Sketcher.Constraint("Vertical", 1, 3, 2, 3))
sketch10.addConstraint(Sketcher.Constraint("Diameter", 0, Q("3 mm")))
sketch10.addConstraint(Sketcher.Constraint("DistanceX", 0, 3, -1, 1, Q("42 mm")))
sketch10.addConstraint(Sketcher.Constraint("DistanceY", 2, 3, 1, 3, Q("62.5 mm")))
sketch10.addConstraint(Sketcher.Constraint("DistanceY", -1, 1, 0, 3, Q("35.37 mm")))
pocket7 = doc.addObject("PartDesign::Pocket", "Pocket006")
body.addObject(pocket7)
pocket7.Profile = sketch10
pocket7.Length = 3

doc.recompute()
